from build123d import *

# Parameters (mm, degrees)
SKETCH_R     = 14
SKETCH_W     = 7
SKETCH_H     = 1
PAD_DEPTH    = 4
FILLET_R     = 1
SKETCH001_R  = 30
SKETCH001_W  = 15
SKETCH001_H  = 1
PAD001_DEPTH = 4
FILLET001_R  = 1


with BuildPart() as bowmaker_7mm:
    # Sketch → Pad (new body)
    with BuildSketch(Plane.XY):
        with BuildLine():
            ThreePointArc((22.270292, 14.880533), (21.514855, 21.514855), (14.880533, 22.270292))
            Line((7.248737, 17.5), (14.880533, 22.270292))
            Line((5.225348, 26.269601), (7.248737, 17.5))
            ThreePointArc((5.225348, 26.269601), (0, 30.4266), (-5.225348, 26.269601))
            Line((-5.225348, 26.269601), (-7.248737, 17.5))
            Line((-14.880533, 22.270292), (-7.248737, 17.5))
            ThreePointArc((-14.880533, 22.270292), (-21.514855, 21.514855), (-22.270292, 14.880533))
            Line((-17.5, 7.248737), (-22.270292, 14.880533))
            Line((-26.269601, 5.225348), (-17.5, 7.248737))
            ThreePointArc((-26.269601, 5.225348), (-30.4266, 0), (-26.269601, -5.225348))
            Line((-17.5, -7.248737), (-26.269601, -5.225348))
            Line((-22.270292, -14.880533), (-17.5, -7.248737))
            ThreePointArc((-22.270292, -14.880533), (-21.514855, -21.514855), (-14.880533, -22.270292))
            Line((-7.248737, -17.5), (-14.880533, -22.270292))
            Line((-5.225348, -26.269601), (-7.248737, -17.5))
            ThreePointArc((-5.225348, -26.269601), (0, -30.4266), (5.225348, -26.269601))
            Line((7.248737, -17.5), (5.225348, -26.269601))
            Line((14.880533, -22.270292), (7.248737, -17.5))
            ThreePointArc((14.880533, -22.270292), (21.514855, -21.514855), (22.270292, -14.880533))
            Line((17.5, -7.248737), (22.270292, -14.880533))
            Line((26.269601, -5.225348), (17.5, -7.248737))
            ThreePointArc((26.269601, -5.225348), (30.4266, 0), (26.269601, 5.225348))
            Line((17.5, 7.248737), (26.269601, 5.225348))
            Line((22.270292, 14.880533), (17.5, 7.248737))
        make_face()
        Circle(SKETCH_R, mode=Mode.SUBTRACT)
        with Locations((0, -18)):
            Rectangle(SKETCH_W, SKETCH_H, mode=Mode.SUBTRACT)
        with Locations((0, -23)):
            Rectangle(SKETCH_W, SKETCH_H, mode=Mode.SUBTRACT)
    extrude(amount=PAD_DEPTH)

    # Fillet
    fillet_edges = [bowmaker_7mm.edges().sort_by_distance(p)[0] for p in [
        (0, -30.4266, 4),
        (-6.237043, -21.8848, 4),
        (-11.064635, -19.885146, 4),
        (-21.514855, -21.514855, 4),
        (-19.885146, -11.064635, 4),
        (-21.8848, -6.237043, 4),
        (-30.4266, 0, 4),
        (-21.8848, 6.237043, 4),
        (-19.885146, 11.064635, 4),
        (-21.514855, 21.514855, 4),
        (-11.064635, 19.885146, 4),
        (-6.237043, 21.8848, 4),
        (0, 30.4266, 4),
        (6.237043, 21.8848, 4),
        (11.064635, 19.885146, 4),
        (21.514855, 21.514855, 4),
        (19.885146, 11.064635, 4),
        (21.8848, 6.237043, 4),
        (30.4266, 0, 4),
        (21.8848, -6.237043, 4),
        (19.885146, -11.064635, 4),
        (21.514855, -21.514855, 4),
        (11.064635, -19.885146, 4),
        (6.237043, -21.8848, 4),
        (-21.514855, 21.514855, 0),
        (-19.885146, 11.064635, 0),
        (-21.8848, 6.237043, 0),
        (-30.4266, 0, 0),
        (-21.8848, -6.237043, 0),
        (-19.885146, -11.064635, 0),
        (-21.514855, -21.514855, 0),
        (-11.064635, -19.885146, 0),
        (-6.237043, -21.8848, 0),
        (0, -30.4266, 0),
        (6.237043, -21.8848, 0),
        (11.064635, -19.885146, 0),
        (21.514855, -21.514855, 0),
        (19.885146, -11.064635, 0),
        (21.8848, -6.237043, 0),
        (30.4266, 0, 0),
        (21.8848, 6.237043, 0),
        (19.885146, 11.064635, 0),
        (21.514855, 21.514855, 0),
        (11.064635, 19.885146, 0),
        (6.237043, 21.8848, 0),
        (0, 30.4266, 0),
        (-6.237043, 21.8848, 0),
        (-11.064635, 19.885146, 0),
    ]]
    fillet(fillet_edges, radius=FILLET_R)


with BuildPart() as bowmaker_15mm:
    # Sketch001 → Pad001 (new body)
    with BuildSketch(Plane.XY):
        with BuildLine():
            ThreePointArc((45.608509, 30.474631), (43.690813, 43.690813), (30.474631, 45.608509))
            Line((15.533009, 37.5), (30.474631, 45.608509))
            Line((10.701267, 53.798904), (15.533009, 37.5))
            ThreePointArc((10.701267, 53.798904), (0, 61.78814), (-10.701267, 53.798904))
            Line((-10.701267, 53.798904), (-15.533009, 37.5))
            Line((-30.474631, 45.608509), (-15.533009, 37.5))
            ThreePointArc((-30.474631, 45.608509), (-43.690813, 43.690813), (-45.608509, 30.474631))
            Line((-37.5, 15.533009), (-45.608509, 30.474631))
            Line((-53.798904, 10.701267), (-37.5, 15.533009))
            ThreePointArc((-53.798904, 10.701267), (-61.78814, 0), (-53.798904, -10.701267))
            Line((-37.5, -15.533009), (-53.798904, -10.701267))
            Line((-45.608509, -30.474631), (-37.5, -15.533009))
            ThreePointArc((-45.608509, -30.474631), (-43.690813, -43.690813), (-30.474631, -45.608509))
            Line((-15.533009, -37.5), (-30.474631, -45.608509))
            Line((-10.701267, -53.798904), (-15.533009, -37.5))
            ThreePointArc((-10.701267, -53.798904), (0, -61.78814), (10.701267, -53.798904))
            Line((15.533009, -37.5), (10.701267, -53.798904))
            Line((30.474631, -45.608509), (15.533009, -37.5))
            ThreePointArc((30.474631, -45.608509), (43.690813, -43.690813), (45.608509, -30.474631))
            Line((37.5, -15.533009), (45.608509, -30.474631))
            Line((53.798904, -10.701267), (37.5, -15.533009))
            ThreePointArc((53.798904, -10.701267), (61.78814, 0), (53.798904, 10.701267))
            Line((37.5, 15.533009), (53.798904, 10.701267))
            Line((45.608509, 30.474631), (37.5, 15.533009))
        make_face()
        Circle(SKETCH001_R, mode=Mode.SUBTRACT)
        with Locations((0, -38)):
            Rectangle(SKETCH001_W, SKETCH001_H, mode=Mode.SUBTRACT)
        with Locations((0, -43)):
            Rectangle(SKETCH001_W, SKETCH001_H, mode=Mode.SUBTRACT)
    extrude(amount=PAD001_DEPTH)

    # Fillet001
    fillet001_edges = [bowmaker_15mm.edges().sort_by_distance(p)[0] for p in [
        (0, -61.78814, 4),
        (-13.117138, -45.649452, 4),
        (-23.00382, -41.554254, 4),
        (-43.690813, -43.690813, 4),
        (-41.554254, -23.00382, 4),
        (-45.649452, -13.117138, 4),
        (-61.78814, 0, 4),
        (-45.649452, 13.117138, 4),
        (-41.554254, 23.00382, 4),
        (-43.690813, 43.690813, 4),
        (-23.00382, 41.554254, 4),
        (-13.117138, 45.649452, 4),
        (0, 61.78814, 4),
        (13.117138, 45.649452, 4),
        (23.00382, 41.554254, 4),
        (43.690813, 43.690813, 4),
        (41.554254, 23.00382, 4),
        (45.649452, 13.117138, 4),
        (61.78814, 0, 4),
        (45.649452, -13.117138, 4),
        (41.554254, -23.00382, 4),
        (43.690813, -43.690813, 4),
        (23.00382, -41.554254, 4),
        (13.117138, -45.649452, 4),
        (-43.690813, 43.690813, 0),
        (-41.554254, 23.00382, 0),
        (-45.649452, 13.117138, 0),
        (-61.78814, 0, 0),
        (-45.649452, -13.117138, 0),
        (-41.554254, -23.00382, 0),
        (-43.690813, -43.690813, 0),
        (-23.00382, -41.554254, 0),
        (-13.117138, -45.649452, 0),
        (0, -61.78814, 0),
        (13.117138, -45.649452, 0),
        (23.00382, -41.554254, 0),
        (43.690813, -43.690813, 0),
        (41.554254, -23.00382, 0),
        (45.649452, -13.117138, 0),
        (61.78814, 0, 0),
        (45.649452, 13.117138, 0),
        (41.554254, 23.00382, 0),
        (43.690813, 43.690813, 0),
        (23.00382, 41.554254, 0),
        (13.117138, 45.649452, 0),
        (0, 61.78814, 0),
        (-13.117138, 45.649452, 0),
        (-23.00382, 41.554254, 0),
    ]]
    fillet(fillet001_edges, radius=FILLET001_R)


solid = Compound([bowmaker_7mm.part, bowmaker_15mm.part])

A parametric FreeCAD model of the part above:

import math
import FreeCAD as App
import Part
import Sketcher

V = App.Vector
Q = App.Units.Quantity


def edges_at(feature, points):
    """Names of the edges that pass closest to the given points."""
    edges = feature.Shape.Edges
    near = lambda p: min(range(len(edges)), key=lambda i: edges[i].distToShape(Part.Vertex(*p))[0])
    return sorted({f"Edge{near(p) + 1}" for p in points})

doc = App.newDocument("Part")
body = doc.addObject("PartDesign::Body", "Body")

sketch1 = body.newObject("Sketcher::SketchObject", "Sketch")
sketch1.AttachmentSupport = (doc.getObject("XY_Plane"), [""])
sketch1.MapMode = "FlatFace"
sketch1.addGeometry(Part.ArcOfCircle(Part.Circle(V(17.7, 17.7, 0), V(0, 0, 1), 5.4), math.radians(-32), math.radians(122)), False)
sketch1.addGeometry(Part.LineSegment(V(14.9, 22.3, 0), V(7.2, 17.5, 0)), False)
sketch1.addGeometry(Part.LineSegment(V(7.2, 17.5, 0), V(5.2, 26.3, 0)), False)
sketch1.addGeometry(Part.ArcOfCircle(Part.Circle(V(0, 25.1, 0), V(0, 0, 1), 5.4), math.radians(13), math.radians(167)), False)
sketch1.addGeometry(Part.LineSegment(V(-5.2, 26.3, 0), V(-7.2, 17.5, 0)), False)
sketch1.addGeometry(Part.LineSegment(V(-7.2, 17.5, 0), V(-14.9, 22.3, 0)), False)
sketch1.addGeometry(Part.ArcOfCircle(Part.Circle(V(-17.7, 17.7, 0), V(0, 0, 1), 5.4), math.radians(58), math.radians(212)), False)
sketch1.addGeometry(Part.LineSegment(V(-22.3, 14.9, 0), V(-17.5, 7.2, 0)), False)
sketch1.addGeometry(Part.LineSegment(V(-17.5, 7.2, 0), V(-26.3, 5.2, 0)), False)
sketch1.addGeometry(Part.ArcOfCircle(Part.Circle(V(-25.1, 0, 0), V(0, 0, 1), 5.4), math.radians(103), math.radians(257)), False)
sketch1.addGeometry(Part.LineSegment(V(-26.3, -5.2, 0), V(-17.5, -7.2, 0)), False)
sketch1.addGeometry(Part.LineSegment(V(-17.5, -7.2, 0), V(-22.3, -14.9, 0)), False)
sketch1.addGeometry(Part.ArcOfCircle(Part.Circle(V(-17.7, -17.7, 0), V(0, 0, 1), 5.4), math.radians(148), math.radians(302)), False)
sketch1.addGeometry(Part.LineSegment(V(-14.9, -22.3, 0), V(-7.2, -17.5, 0)), False)
sketch1.addGeometry(Part.LineSegment(V(-7.2, -17.5, 0), V(-5.2, -26.3, 0)), False)
sketch1.addGeometry(Part.ArcOfCircle(Part.Circle(V(0, -25.1, 0), V(0, 0, 1), 5.4), math.radians(-167), math.radians(-13)), False)
sketch1.addGeometry(Part.LineSegment(V(5.2, -26.3, 0), V(7.2, -17.5, 0)), False)
sketch1.addGeometry(Part.LineSegment(V(7.2, -17.5, 0), V(14.9, -22.3, 0)), False)
sketch1.addGeometry(Part.ArcOfCircle(Part.Circle(V(17.7, -17.7, 0), V(0, 0, 1), 5.4), math.radians(-122), math.radians(32)), False)
sketch1.addGeometry(Part.LineSegment(V(22.3, -14.9, 0), V(17.5, -7.2, 0)), False)
sketch1.addGeometry(Part.LineSegment(V(17.5, -7.2, 0), V(26.3, -5.2, 0)), False)
sketch1.addGeometry(Part.ArcOfCircle(Part.Circle(V(25.1, 0, 0), V(0, 0, 1), 5.4), math.radians(-77), math.radians(77)), False)
sketch1.addGeometry(Part.LineSegment(V(26.3, 5.2, 0), V(17.5, 7.2, 0)), False)
sketch1.addGeometry(Part.LineSegment(V(17.5, 7.2, 0), V(22.3, 14.9, 0)), False)
sketch1.addGeometry(Part.LineSegment(V(3.5, -23.5, 0), V(-3.5, -23.5, 0)), False)
sketch1.addGeometry(Part.LineSegment(V(-3.5, -23.5, 0), V(-3.5, -22.5, 0)), False)
sketch1.addGeometry(Part.LineSegment(V(-3.5, -22.5, 0), V(3.5, -22.5, 0)), False)
sketch1.addGeometry(Part.LineSegment(V(3.5, -22.5, 0), V(3.5, -23.5, 0)), False)
sketch1.addGeometry(Part.LineSegment(V(3.5, -18.5, 0), V(-3.5, -18.5, 0)), False)
sketch1.addGeometry(Part.LineSegment(V(-3.5, -18.5, 0), V(-3.5, -17.5, 0)), False)
sketch1.addGeometry(Part.LineSegment(V(-3.5, -17.5, 0), V(3.5, -17.5, 0)), False)
sketch1.addGeometry(Part.LineSegment(V(3.5, -17.5, 0), V(3.5, -18.5, 0)), False)
sketch1.addGeometry(Part.Circle(V(0, 0, 0), V(0, 0, 1), 14), False)
sketch1.addConstraint(Sketcher.Constraint("Tangent", 0, 2, 1, 1))
sketch1.addConstraint(Sketcher.Constraint("Coincident", 1, 2, 2, 1))
sketch1.addConstraint(Sketcher.Constraint("Tangent", 2, 2, 3, 1))
sketch1.addConstraint(Sketcher.Constraint("Tangent", 3, 2, 4, 1))
sketch1.addConstraint(Sketcher.Constraint("Coincident", 4, 2, 5, 1))
sketch1.addConstraint(Sketcher.Constraint("Tangent", 5, 2, 6, 1))
sketch1.addConstraint(Sketcher.Constraint("Tangent", 6, 2, 7, 1))
sketch1.addConstraint(Sketcher.Constraint("Coincident", 7, 2, 8, 1))
sketch1.addConstraint(Sketcher.Constraint("Tangent", 8, 2, 9, 1))
sketch1.addConstraint(Sketcher.Constraint("Tangent", 9, 2, 10, 1))
sketch1.addConstraint(Sketcher.Constraint("Coincident", 10, 2, 11, 1))
sketch1.addConstraint(Sketcher.Constraint("Tangent", 11, 2, 12, 1))
sketch1.addConstraint(Sketcher.Constraint("Tangent", 12, 2, 13, 1))
sketch1.addConstraint(Sketcher.Constraint("Coincident", 13, 2, 14, 1))
sketch1.addConstraint(Sketcher.Constraint("Tangent", 14, 2, 15, 1))
sketch1.addConstraint(Sketcher.Constraint("Tangent", 15, 2, 16, 1))
sketch1.addConstraint(Sketcher.Constraint("Coincident", 16, 2, 17, 1))
sketch1.addConstraint(Sketcher.Constraint("Tangent", 17, 2, 18, 1))
sketch1.addConstraint(Sketcher.Constraint("Tangent", 18, 2, 19, 1))
sketch1.addConstraint(Sketcher.Constraint("Coincident", 19, 2, 20, 1))
sketch1.addConstraint(Sketcher.Constraint("Tangent", 20, 2, 21, 1))
sketch1.addConstraint(Sketcher.Constraint("Tangent", 21, 2, 22, 1))
sketch1.addConstraint(Sketcher.Constraint("Coincident", 22, 2, 23, 1))
sketch1.addConstraint(Sketcher.Constraint("Tangent", 23, 2, 0, 1))
sketch1.addConstraint(Sketcher.Constraint("Coincident", 24, 2, 25, 1))
sketch1.addConstraint(Sketcher.Constraint("Coincident", 25, 2, 26, 1))
sketch1.addConstraint(Sketcher.Constraint("Coincident", 26, 2, 27, 1))
sketch1.addConstraint(Sketcher.Constraint("Coincident", 27, 2, 24, 1))
sketch1.addConstraint(Sketcher.Constraint("Coincident", 28, 2, 29, 1))
sketch1.addConstraint(Sketcher.Constraint("Coincident", 29, 2, 30, 1))
sketch1.addConstraint(Sketcher.Constraint("Coincident", 30, 2, 31, 1))
sketch1.addConstraint(Sketcher.Constraint("Coincident", 31, 2, 28, 1))
sketch1.addConstraint(Sketcher.Constraint("Horizontal", 24))
sketch1.addConstraint(Sketcher.Constraint("Vertical", 25))
sketch1.addConstraint(Sketcher.Constraint("Horizontal", 26))
sketch1.addConstraint(Sketcher.Constraint("Vertical", 27))
sketch1.addConstraint(Sketcher.Constraint("Horizontal", 28))
sketch1.addConstraint(Sketcher.Constraint("Vertical", 29))
sketch1.addConstraint(Sketcher.Constraint("Horizontal", 30))
sketch1.addConstraint(Sketcher.Constraint("Vertical", 31))
sketch1.addConstraint(Sketcher.Constraint("Coincident", 32, 3, -1, 1))
sketch1.addConstraint(Sketcher.Constraint("Equal", 0, 3))
sketch1.addConstraint(Sketcher.Constraint("Equal", 3, 6))
sketch1.addConstraint(Sketcher.Constraint("Equal", 6, 9))
sketch1.addConstraint(Sketcher.Constraint("Equal", 9, 12))
sketch1.addConstraint(Sketcher.Constraint("Equal", 12, 15))
sketch1.addConstraint(Sketcher.Constraint("Equal", 15, 18))
sketch1.addConstraint(Sketcher.Constraint("Equal", 18, 21))
sketch1.addConstraint(Sketcher.Constraint("Symmetric", 0, 3, 12, 3, -1, 1))
sketch1.addConstraint(Sketcher.Constraint("Symmetric", 3, 3, 15, 3, -1, 1))
sketch1.addConstraint(Sketcher.Constraint("Symmetric", 6, 3, 18, 3, -1, 1))
sketch1.addConstraint(Sketcher.Constraint("Symmetric", 9, 3, 21, 3, -1, 1))
sketch1.addConstraint(Sketcher.Constraint("Symmetric", 1, 2, 13, 2, -1, 1))
sketch1.addConstraint(Sketcher.Constraint("Symmetric", 4, 2, 16, 2, -1, 1))
sketch1.addConstraint(Sketcher.Constraint("Symmetric", 7, 2, 19, 2, -1, 1))
sketch1.addConstraint(Sketcher.Constraint("Symmetric", 10, 2, 22, 2, -1, 1))
sketch1.addConstraint(Sketcher.Constraint("Symmetric", 0, 3, 6, 3, -2))
sketch1.addConstraint(Sketcher.Constraint("Symmetric", 2, 2, 3, 2, -2))
sketch1.addConstraint(Sketcher.Constraint("Symmetric", 10, 2, 19, 2, -2))
sketch1.addConstraint(Sketcher.Constraint("PointOnObject", 9, 3, -1))
sketch1.addConstraint(Sketcher.Constraint("Perpendicular", 1, 7))
sketch1.addConstraint(Sketcher.Constraint("Perpendicular", 2, 8))
sketch1.addConstraint(Sketcher.Constraint("Perpendicular", 5, 11))
sketch1.addConstraint(Sketcher.Constraint("Horizontal", 16, 2, 29, 2))
sketch1.addConstraint(Sketcher.Constraint("Vertical", 25, 2, 28, 2))
sketch1.addConstraint(Sketcher.Constraint("Vertical", 27, 2, 30, 2))
sketch1.addConstraint(Sketcher.Constraint("Equal", 27, 29))
sketch1.addConstraint(Sketcher.Constraint("Equal", 1, 2))
sketch1.addConstraint(Sketcher.Constraint("Equal", 5, 7))
sketch1.addConstraint(Sketcher.Constraint("Equal", 7, 8))
sketch1.addConstraint(Sketcher.Constraint("Diameter", 32, Q("28 mm")))
sketch1.addConstraint(Sketcher.Constraint("DistanceX", 24, 2, 24, 1, Q("7 mm")))
sketch1.addConstraint(Sketcher.Constraint("DistanceY", 25, 1, 25, 2, Q("1 mm")))
sketch1.addConstraint(Sketcher.Constraint("Distance", 1, Q("9 mm")))
sketch1.addConstraint(Sketcher.Constraint("DistanceY", 24, 2, 13, 2, Q("6 mm")))
sketch1.addConstraint(Sketcher.Constraint("DistanceY", -1, 1, 1, 2, Q("17.5 mm")))
sketch1.addConstraint(Sketcher.Constraint("DistanceX", 24, 2, -1, 1, Q("3.5 mm")))
sketch1.addConstraint(Sketcher.Constraint("Radius", 0, Q("5.362632 mm")))
sketch1.addConstraint(Sketcher.Constraint("DistanceX", -1, 1, 0, 3, Q("17.722902 mm")))
pad1 = body.newObject("PartDesign::Pad", "Pad")
pad1.Profile = sketch1
pad1.Length = 4
doc.recompute()

fillet = body.newObject("PartDesign::Fillet", "Fillet")
fillet.Base = (pad1, edges_at(pad1, [
    (0, -30.427, 4),
    (-6.237, -21.885, 4),
    (-11.065, -19.885, 4),
    (-21.515, -21.515, 4),
    (-19.885, -11.065, 4),
    (-21.885, -6.237, 4),
    (-30.427, 0, 4),
    (-21.885, 6.237, 4),
    (-19.885, 11.065, 4),
    (-21.515, 21.515, 4),
    (-11.065, 19.885, 4),
    (-6.237, 21.885, 4),
    (0, 30.427, 4),
    (6.237, 21.885, 4),
    (11.065, 19.885, 4),
    (21.515, 21.515, 4),
    (19.885, 11.065, 4),
    (21.885, 6.237, 4),
    (30.427, 0, 4),
    (21.885, -6.237, 4),
    (19.885, -11.065, 4),
    (21.515, -21.515, 4),
    (11.065, -19.885, 4),
    (6.237, -21.885, 4),
    (-21.515, 21.515, 0),
    (-19.885, 11.065, 0),
    (-21.885, 6.237, 0),
    (-30.427, 0, 0),
    (-21.885, -6.237, 0),
    (-19.885, -11.065, 0),
    (-21.515, -21.515, 0),
    (-11.065, -19.885, 0),
    (-6.237, -21.885, 0),
    (0, -30.427, 0),
    (6.237, -21.885, 0),
    (11.065, -19.885, 0),
    (21.515, -21.515, 0),
    (19.885, -11.065, 0),
    (21.885, -6.237, 0),
    (30.427, 0, 0),
    (21.885, 6.237, 0),
    (19.885, 11.065, 0),
    (21.515, 21.515, 0),
    (11.065, 19.885, 0),
    (6.237, 21.885, 0),
    (0, 30.427, 0),
    (-6.237, 21.885, 0),
    (-11.065, 19.885, 0),
]))
fillet.Radius = 1
body2 = doc.addObject("PartDesign::Body", "Body001")

sketch2 = body2.newObject("Sketcher::SketchObject", "Sketch001")
sketch2.AttachmentSupport = (doc.getObject("XY_Plane001"), [""])
sketch2.MapMode = "FlatFace"
sketch2.addGeometry(Part.ArcOfCircle(Part.Circle(V(35.8, 35.8, 0), V(0, 0, 1), 11.2), math.radians(-28), math.radians(118)), False)
sketch2.addGeometry(Part.LineSegment(V(30.5, 45.6, 0), V(15.5, 37.5, 0)), False)
sketch2.addGeometry(Part.LineSegment(V(15.5, 37.5, 0), V(10.7, 53.8, 0)), False)
sketch2.addGeometry(Part.ArcOfCircle(Part.Circle(V(0, 50.6, 0), V(0, 0, 1), 11.2), math.radians(17), math.radians(163)), False)
sketch2.addGeometry(Part.LineSegment(V(-10.7, 53.8, 0), V(-15.5, 37.5, 0)), False)
sketch2.addGeometry(Part.LineSegment(V(-15.5, 37.5, 0), V(-30.5, 45.6, 0)), False)
sketch2.addGeometry(Part.ArcOfCircle(Part.Circle(V(-35.8, 35.8, 0), V(0, 0, 1), 11.2), math.radians(62), math.radians(208)), False)
sketch2.addGeometry(Part.LineSegment(V(-45.6, 30.5, 0), V(-37.5, 15.5, 0)), False)
sketch2.addGeometry(Part.LineSegment(V(-37.5, 15.5, 0), V(-53.8, 10.7, 0)), False)
sketch2.addGeometry(Part.ArcOfCircle(Part.Circle(V(-50.6, 0, 0), V(0, 0, 1), 11.2), math.radians(107), math.radians(253)), False)
sketch2.addGeometry(Part.LineSegment(V(-53.8, -10.7, 0), V(-37.5, -15.5, 0)), False)
sketch2.addGeometry(Part.LineSegment(V(-37.5, -15.5, 0), V(-45.6, -30.5, 0)), False)
sketch2.addGeometry(Part.ArcOfCircle(Part.Circle(V(-35.8, -35.8, 0), V(0, 0, 1), 11.2), math.radians(152), math.radians(298)), False)
sketch2.addGeometry(Part.LineSegment(V(-30.5, -45.6, 0), V(-15.5, -37.5, 0)), False)
sketch2.addGeometry(Part.LineSegment(V(-15.5, -37.5, 0), V(-10.7, -53.8, 0)), False)
sketch2.addGeometry(Part.ArcOfCircle(Part.Circle(V(0, -50.6, 0), V(0, 0, 1), 11.2), math.radians(-163), math.radians(-17)), False)
sketch2.addGeometry(Part.LineSegment(V(10.7, -53.8, 0), V(15.5, -37.5, 0)), False)
sketch2.addGeometry(Part.LineSegment(V(15.5, -37.5, 0), V(30.5, -45.6, 0)), False)
sketch2.addGeometry(Part.ArcOfCircle(Part.Circle(V(35.8, -35.8, 0), V(0, 0, 1), 11.2), math.radians(-118), math.radians(28)), False)
sketch2.addGeometry(Part.LineSegment(V(45.6, -30.5, 0), V(37.5, -15.5, 0)), False)
sketch2.addGeometry(Part.LineSegment(V(37.5, -15.5, 0), V(53.8, -10.7, 0)), False)
sketch2.addGeometry(Part.ArcOfCircle(Part.Circle(V(50.6, 0, 0), V(0, 0, 1), 11.2), math.radians(-73), math.radians(73)), False)
sketch2.addGeometry(Part.LineSegment(V(53.8, 10.7, 0), V(37.5, 15.5, 0)), False)
sketch2.addGeometry(Part.LineSegment(V(37.5, 15.5, 0), V(45.6, 30.5, 0)), False)
sketch2.addGeometry(Part.LineSegment(V(7.5, -43.5, 0), V(-7.5, -43.5, 0)), False)
sketch2.addGeometry(Part.LineSegment(V(-7.5, -43.5, 0), V(-7.5, -42.5, 0)), False)
sketch2.addGeometry(Part.LineSegment(V(-7.5, -42.5, 0), V(7.5, -42.5, 0)), False)
sketch2.addGeometry(Part.LineSegment(V(7.5, -42.5, 0), V(7.5, -43.5, 0)), False)
sketch2.addGeometry(Part.LineSegment(V(7.5, -38.5, 0), V(-7.5, -38.5, 0)), False)
sketch2.addGeometry(Part.LineSegment(V(-7.5, -38.5, 0), V(-7.5, -37.5, 0)), False)
sketch2.addGeometry(Part.LineSegment(V(-7.5, -37.5, 0), V(7.5, -37.5, 0)), False)
sketch2.addGeometry(Part.LineSegment(V(7.5, -37.5, 0), V(7.5, -38.5, 0)), False)
sketch2.addGeometry(Part.Circle(V(0, 0, 0), V(0, 0, 1), 30), False)
sketch2.addConstraint(Sketcher.Constraint("Tangent", 0, 2, 1, 1))
sketch2.addConstraint(Sketcher.Constraint("Coincident", 1, 2, 2, 1))
sketch2.addConstraint(Sketcher.Constraint("Tangent", 2, 2, 3, 1))
sketch2.addConstraint(Sketcher.Constraint("Tangent", 3, 2, 4, 1))
sketch2.addConstraint(Sketcher.Constraint("Coincident", 4, 2, 5, 1))
sketch2.addConstraint(Sketcher.Constraint("Tangent", 5, 2, 6, 1))
sketch2.addConstraint(Sketcher.Constraint("Tangent", 6, 2, 7, 1))
sketch2.addConstraint(Sketcher.Constraint("Coincident", 7, 2, 8, 1))
sketch2.addConstraint(Sketcher.Constraint("Tangent", 8, 2, 9, 1))
sketch2.addConstraint(Sketcher.Constraint("Tangent", 9, 2, 10, 1))
sketch2.addConstraint(Sketcher.Constraint("Coincident", 10, 2, 11, 1))
sketch2.addConstraint(Sketcher.Constraint("Tangent", 11, 2, 12, 1))
sketch2.addConstraint(Sketcher.Constraint("Tangent", 12, 2, 13, 1))
sketch2.addConstraint(Sketcher.Constraint("Coincident", 13, 2, 14, 1))
sketch2.addConstraint(Sketcher.Constraint("Tangent", 14, 2, 15, 1))
sketch2.addConstraint(Sketcher.Constraint("Tangent", 15, 2, 16, 1))
sketch2.addConstraint(Sketcher.Constraint("Coincident", 16, 2, 17, 1))
sketch2.addConstraint(Sketcher.Constraint("Tangent", 17, 2, 18, 1))
sketch2.addConstraint(Sketcher.Constraint("Tangent", 18, 2, 19, 1))
sketch2.addConstraint(Sketcher.Constraint("Coincident", 19, 2, 20, 1))
sketch2.addConstraint(Sketcher.Constraint("Tangent", 20, 2, 21, 1))
sketch2.addConstraint(Sketcher.Constraint("Tangent", 21, 2, 22, 1))
sketch2.addConstraint(Sketcher.Constraint("Coincident", 22, 2, 23, 1))
sketch2.addConstraint(Sketcher.Constraint("Tangent", 23, 2, 0, 1))
sketch2.addConstraint(Sketcher.Constraint("Coincident", 24, 2, 25, 1))
sketch2.addConstraint(Sketcher.Constraint("Coincident", 25, 2, 26, 1))
sketch2.addConstraint(Sketcher.Constraint("Coincident", 26, 2, 27, 1))
sketch2.addConstraint(Sketcher.Constraint("Coincident", 27, 2, 24, 1))
sketch2.addConstraint(Sketcher.Constraint("Coincident", 28, 2, 29, 1))
sketch2.addConstraint(Sketcher.Constraint("Coincident", 29, 2, 30, 1))
sketch2.addConstraint(Sketcher.Constraint("Coincident", 30, 2, 31, 1))
sketch2.addConstraint(Sketcher.Constraint("Coincident", 31, 2, 28, 1))
sketch2.addConstraint(Sketcher.Constraint("Horizontal", 24))
sketch2.addConstraint(Sketcher.Constraint("Vertical", 25))
sketch2.addConstraint(Sketcher.Constraint("Horizontal", 26))
sketch2.addConstraint(Sketcher.Constraint("Vertical", 27))
sketch2.addConstraint(Sketcher.Constraint("Horizontal", 28))
sketch2.addConstraint(Sketcher.Constraint("Vertical", 29))
sketch2.addConstraint(Sketcher.Constraint("Horizontal", 30))
sketch2.addConstraint(Sketcher.Constraint("Vertical", 31))
sketch2.addConstraint(Sketcher.Constraint("Coincident", 32, 3, -1, 1))
sketch2.addConstraint(Sketcher.Constraint("Equal", 0, 3))
sketch2.addConstraint(Sketcher.Constraint("Equal", 3, 6))
sketch2.addConstraint(Sketcher.Constraint("Equal", 6, 9))
sketch2.addConstraint(Sketcher.Constraint("Equal", 9, 12))
sketch2.addConstraint(Sketcher.Constraint("Equal", 12, 15))
sketch2.addConstraint(Sketcher.Constraint("Equal", 15, 18))
sketch2.addConstraint(Sketcher.Constraint("Equal", 18, 21))
sketch2.addConstraint(Sketcher.Constraint("Symmetric", 0, 3, 12, 3, -1, 1))
sketch2.addConstraint(Sketcher.Constraint("Symmetric", 3, 3, 15, 3, -1, 1))
sketch2.addConstraint(Sketcher.Constraint("Symmetric", 6, 3, 18, 3, -1, 1))
sketch2.addConstraint(Sketcher.Constraint("Symmetric", 9, 3, 21, 3, -1, 1))
sketch2.addConstraint(Sketcher.Constraint("Symmetric", 1, 2, 13, 2, -1, 1))
sketch2.addConstraint(Sketcher.Constraint("Symmetric", 4, 2, 16, 2, -1, 1))
sketch2.addConstraint(Sketcher.Constraint("Symmetric", 7, 2, 19, 2, -1, 1))
sketch2.addConstraint(Sketcher.Constraint("Symmetric", 10, 2, 22, 2, -1, 1))
sketch2.addConstraint(Sketcher.Constraint("Symmetric", 0, 3, 6, 3, -2))
sketch2.addConstraint(Sketcher.Constraint("Symmetric", 2, 2, 3, 2, -2))
sketch2.addConstraint(Sketcher.Constraint("Symmetric", 10, 2, 19, 2, -2))
sketch2.addConstraint(Sketcher.Constraint("PointOnObject", 9, 3, -1))
sketch2.addConstraint(Sketcher.Constraint("Perpendicular", 1, 7))
sketch2.addConstraint(Sketcher.Constraint("Perpendicular", 2, 8))
sketch2.addConstraint(Sketcher.Constraint("Perpendicular", 5, 11))
sketch2.addConstraint(Sketcher.Constraint("Horizontal", 16, 2, 29, 2))
sketch2.addConstraint(Sketcher.Constraint("Vertical", 25, 2, 28, 2))
sketch2.addConstraint(Sketcher.Constraint("Vertical", 27, 2, 30, 2))
sketch2.addConstraint(Sketcher.Constraint("Equal", 27, 29))
sketch2.addConstraint(Sketcher.Constraint("Equal", 1, 2))
sketch2.addConstraint(Sketcher.Constraint("Equal", 5, 7))
sketch2.addConstraint(Sketcher.Constraint("Equal", 7, 8))
sketch2.addConstraint(Sketcher.Constraint("Diameter", 32, Q("60 mm")))
sketch2.addConstraint(Sketcher.Constraint("DistanceX", 24, 2, 24, 1, Q("15 mm")))
sketch2.addConstraint(Sketcher.Constraint("DistanceY", 25, 1, 25, 2, Q("1 mm")))
sketch2.addConstraint(Sketcher.Constraint("Distance", 1, Q("17 mm")))
sketch2.addConstraint(Sketcher.Constraint("DistanceY", 24, 2, 13, 2, Q("6 mm")))
sketch2.addConstraint(Sketcher.Constraint("DistanceY", -1, 1, 1, 2, Q("37.5 mm")))
sketch2.addConstraint(Sketcher.Constraint("DistanceX", 24, 2, -1, 1, Q("7.5 mm")))
sketch2.addConstraint(Sketcher.Constraint("Radius", 0, Q("11.161582 mm")))
sketch2.addConstraint(Sketcher.Constraint("DistanceX", 6, 2, 4, 2, Q("30.0755 mm")))
pad2 = body2.newObject("PartDesign::Pad", "Pad001")
pad2.Profile = sketch2
pad2.Length = 4
doc.recompute()

fillet2 = body2.newObject("PartDesign::Fillet", "Fillet001")
fillet2.Base = (pad2, edges_at(pad2, [
    (0, -61.788, 4),
    (-13.117, -45.649, 4),
    (-23.004, -41.554, 4),
    (-43.691, -43.691, 4),
    (-41.554, -23.004, 4),
    (-45.649, -13.117, 4),
    (-61.788, 0, 4),
    (-45.649, 13.117, 4),
    (-41.554, 23.004, 4),
    (-43.691, 43.691, 4),
    (-23.004, 41.554, 4),
    (-13.117, 45.649, 4),
    (0, 61.788, 4),
    (13.117, 45.649, 4),
    (23.004, 41.554, 4),
    (43.691, 43.691, 4),
    (41.554, 23.004, 4),
    (45.649, 13.117, 4),
    (61.788, 0, 4),
    (45.649, -13.117, 4),
    (41.554, -23.004, 4),
    (43.691, -43.691, 4),
    (23.004, -41.554, 4),
    (13.117, -45.649, 4),
    (-43.691, 43.691, 0),
    (-41.554, 23.004, 0),
    (-45.649, 13.117, 0),
    (-61.788, 0, 0),
    (-45.649, -13.117, 0),
    (-41.554, -23.004, 0),
    (-43.691, -43.691, 0),
    (-23.004, -41.554, 0),
    (-13.117, -45.649, 0),
    (0, -61.788, 0),
    (13.117, -45.649, 0),
    (23.004, -41.554, 0),
    (43.691, -43.691, 0),
    (41.554, -23.004, 0),
    (45.649, -13.117, 0),
    (61.788, 0, 0),
    (45.649, 13.117, 0),
    (41.554, 23.004, 0),
    (43.691, 43.691, 0),
    (23.004, 41.554, 0),
    (13.117, 45.649, 0),
    (0, 61.788, 0),
    (-13.117, 45.649, 0),
    (-23.004, 41.554, 0),
]))
fillet2.Radius = 1

doc.recompute()
